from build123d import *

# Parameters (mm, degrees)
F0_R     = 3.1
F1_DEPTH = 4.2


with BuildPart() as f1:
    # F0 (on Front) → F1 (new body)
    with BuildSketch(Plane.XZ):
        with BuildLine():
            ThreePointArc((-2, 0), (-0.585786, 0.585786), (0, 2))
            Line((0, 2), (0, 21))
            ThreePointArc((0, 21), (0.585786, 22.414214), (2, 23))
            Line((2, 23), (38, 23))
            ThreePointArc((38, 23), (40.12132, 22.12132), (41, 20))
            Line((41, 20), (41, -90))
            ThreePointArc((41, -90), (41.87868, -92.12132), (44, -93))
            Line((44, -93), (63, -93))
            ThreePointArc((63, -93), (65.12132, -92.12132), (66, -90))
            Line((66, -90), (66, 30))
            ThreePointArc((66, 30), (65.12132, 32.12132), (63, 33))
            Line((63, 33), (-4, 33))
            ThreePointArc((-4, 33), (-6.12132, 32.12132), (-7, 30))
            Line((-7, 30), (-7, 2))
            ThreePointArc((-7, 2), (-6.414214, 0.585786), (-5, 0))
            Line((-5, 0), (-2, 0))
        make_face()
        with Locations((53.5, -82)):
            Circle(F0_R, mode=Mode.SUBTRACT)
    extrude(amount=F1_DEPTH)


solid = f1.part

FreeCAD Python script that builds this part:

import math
import FreeCAD as App
import Part
import Sketcher

V = App.Vector

doc = App.newDocument("Part")
params = doc.addObject("Spreadsheet::Sheet", "Params")
for row, (alias, value) in enumerate([
    ("sketch1_radius", "1.999999 mm"),
    ("sketch1_radius2", "3.000001 mm"),
    ("sketch1_diameter", "6.2 mm"),
    ("sketch1_width", "36 mm"),
    ("sketch1_width2", "19 mm"),
    ("pad1_length", "4.2 mm"),
], start=1):
    params.set(f"A{row}", alias)
    params.set(f"B{row}", "=" + value)
    params.setAlias(f"B{row}", alias)

body = doc.addObject("PartDesign::Body", "Body")

# Sketch on XZ plane
sketch1 = body.newObject("Sketcher::SketchObject", "Sketch")
sketch1.AttachmentSupport = (doc.getObject("XZ_Plane"), [""])
sketch1.MapMode = "FlatFace"
sketch1.addGeometry(Part.ArcOfCircle(Part.Circle(V(-2, 2, 0), V(0, 0, 1), 2), math.radians(-90), math.radians(0)), False)
sketch1.addGeometry(Part.LineSegment(V(0, 2, 0), V(0, 21, 0)), False)
sketch1.addGeometry(Part.ArcOfCircle(Part.Circle(V(2, 21, 0), V(0, 0, 1), 2), math.radians(90), math.radians(180)), False)
sketch1.addGeometry(Part.LineSegment(V(2, 23, 0), V(38, 23, 0)), False)
sketch1.addGeometry(Part.ArcOfCircle(Part.Circle(V(38, 20, 0), V(0, 0, 1), 3), math.radians(0), math.radians(90)), False)
sketch1.addGeometry(Part.LineSegment(V(41, 20, 0), V(41, -90, 0)), False)
sketch1.addGeometry(Part.ArcOfCircle(Part.Circle(V(44, -90, 0), V(0, 0, 1), 3), math.radians(-180), math.radians(-90)), False)
sketch1.addGeometry(Part.LineSegment(V(44, -93, 0), V(63, -93, 0)), False)
sketch1.addGeometry(Part.ArcOfCircle(Part.Circle(V(63, -90, 0), V(0, 0, 1), 3), math.radians(-90), math.radians(0)), False)
sketch1.addGeometry(Part.LineSegment(V(66, -90, 0), V(66, 30, 0)), False)
sketch1.addGeometry(Part.ArcOfCircle(Part.Circle(V(63, 30, 0), V(0, 0, 1), 3), math.radians(0), math.radians(90)), False)
sketch1.addGeometry(Part.LineSegment(V(63, 33, 0), V(-4, 33, 0)), False)
sketch1.addGeometry(Part.ArcOfCircle(Part.Circle(V(-4, 30, 0), V(0, 0, 1), 3), math.radians(90), math.radians(180)), False)
sketch1.addGeometry(Part.LineSegment(V(-7, 30, 0), V(-7, 2, 0)), False)
sketch1.addGeometry(Part.ArcOfCircle(Part.Circle(V(-5, 2, 0), V(0, 0, 1), 2), math.radians(180), math.radians(270)), False)
sketch1.addGeometry(Part.LineSegment(V(-5, 0, 0), V(-2, 0, 0)), False)
sketch1.addGeometry(Part.Circle(V(53.5, -82, 0), V(0, 0, 1), 3.1), False)
sketch1.addConstraint(Sketcher.Constraint("Tangent", 0, 2, 1, 1))
sketch1.addConstraint(Sketcher.Constraint("Tangent", 1, 2, 2, 2))
sketch1.addConstraint(Sketcher.Constraint("Tangent", 2, 1, 3, 1))
sketch1.addConstraint(Sketcher.Constraint("Tangent", 3, 2, 4, 2))
sketch1.addConstraint(Sketcher.Constraint("Tangent", 4, 1, 5, 1))
sketch1.addConstraint(Sketcher.Constraint("Tangent", 5, 2, 6, 1))
sketch1.addConstraint(Sketcher.Constraint("Tangent", 6, 2, 7, 1))
sketch1.addConstraint(Sketcher.Constraint("Tangent", 7, 2, 8, 1))
sketch1.addConstraint(Sketcher.Constraint("Tangent", 8, 2, 9, 1))
sketch1.addConstraint(Sketcher.Constraint("Tangent", 9, 2, 10, 1))
sketch1.addConstraint(Sketcher.Constraint("Tangent", 10, 2, 11, 1))
sketch1.addConstraint(Sketcher.Constraint("Tangent", 11, 2, 12, 1))
sketch1.addConstraint(Sketcher.Constraint("Tangent", 12, 2, 13, 1))
sketch1.addConstraint(Sketcher.Constraint("Tangent", 13, 2, 14, 1))
sketch1.addConstraint(Sketcher.Constraint("Tangent", 14, 2, 15, 1))
sketch1.addConstraint(Sketcher.Constraint("Tangent", 15, 2, 0, 1))
sketch1.addConstraint(Sketcher.Constraint("Vertical", 1))
sketch1.addConstraint(Sketcher.Constraint("Horizontal", 3))
sketch1.addConstraint(Sketcher.Constraint("Vertical", 5))
sketch1.addConstraint(Sketcher.Constraint("Horizontal", 7))
sketch1.addConstraint(Sketcher.Constraint("Vertical", 9))
sketch1.addConstraint(Sketcher.Constraint("Horizontal", 11))
sketch1.addConstraint(Sketcher.Constraint("Vertical", 13))
sketch1.addConstraint(Sketcher.Constraint("Horizontal", 15))
sketch1.addConstraint(Sketcher.Constraint("Equal", 0, 2))
sketch1.addConstraint(Sketcher.Constraint("Equal", 4, 6))
sketch1.addConstraint(Sketcher.Constraint("Equal", 6, 8))
sketch1.addConstraint(Sketcher.Constraint("Equal", 8, 10))
sketch1.addConstraint(Sketcher.Constraint("Equal", 10, 12))
sketch1.addConstraint(Sketcher.Constraint("Equal", 2, 14))
sketch1.addConstraint(Sketcher.Constraint("PointOnObject", 0, 2, -2))
sketch1.addConstraint(Sketcher.Constraint("PointOnObject", 14, 2, -1))
sketch1.addConstraint(Sketcher.Constraint("Equal", 7, 1))
sketch1.addConstraint(Sketcher.Constraint("Radius", 0, 1.999999))
sketch1.addConstraint(Sketcher.Constraint("Radius", 4, 3.000001))
sketch1.addConstraint(Sketcher.Constraint("Diameter", 16, 6.2))
sketch1.addConstraint(Sketcher.Constraint("DistanceX", 3, 1, 3, 2, 36.0))
sketch1.addConstraint(Sketcher.Constraint("DistanceX", 7, 1, 7, 2, 19.0))
sketch1.addConstraint(Sketcher.Constraint("DistanceX", 11, 2, 11, 1, 67.0))
sketch1.addConstraint(Sketcher.Constraint("DistanceY", 5, 2, 5, 1, 110.0))
sketch1.addConstraint(Sketcher.Constraint("DistanceY", 9, 1, 9, 2, 120.0))
sketch1.addConstraint(Sketcher.Constraint("DistanceY", 16, 3, -1, 1, 82.0))
sketch1.addConstraint(Sketcher.Constraint("DistanceX", -1, 1, 16, 3, 53.5))
sketch1.setExpression("Constraints[33]", "Params.sketch1_radius")
sketch1.setExpression("Constraints[34]", "Params.sketch1_radius2")
sketch1.setExpression("Constraints[35]", "Params.sketch1_diameter")
sketch1.setExpression("Constraints[36]", "Params.sketch1_width")
sketch1.setExpression("Constraints[37]", "Params.sketch1_width2")
pad1 = body.newObject("PartDesign::Pad", "Pad")
pad1.Profile = sketch1
pad1.setExpression("Length", "Params.pad1_length")

doc.recompute()
